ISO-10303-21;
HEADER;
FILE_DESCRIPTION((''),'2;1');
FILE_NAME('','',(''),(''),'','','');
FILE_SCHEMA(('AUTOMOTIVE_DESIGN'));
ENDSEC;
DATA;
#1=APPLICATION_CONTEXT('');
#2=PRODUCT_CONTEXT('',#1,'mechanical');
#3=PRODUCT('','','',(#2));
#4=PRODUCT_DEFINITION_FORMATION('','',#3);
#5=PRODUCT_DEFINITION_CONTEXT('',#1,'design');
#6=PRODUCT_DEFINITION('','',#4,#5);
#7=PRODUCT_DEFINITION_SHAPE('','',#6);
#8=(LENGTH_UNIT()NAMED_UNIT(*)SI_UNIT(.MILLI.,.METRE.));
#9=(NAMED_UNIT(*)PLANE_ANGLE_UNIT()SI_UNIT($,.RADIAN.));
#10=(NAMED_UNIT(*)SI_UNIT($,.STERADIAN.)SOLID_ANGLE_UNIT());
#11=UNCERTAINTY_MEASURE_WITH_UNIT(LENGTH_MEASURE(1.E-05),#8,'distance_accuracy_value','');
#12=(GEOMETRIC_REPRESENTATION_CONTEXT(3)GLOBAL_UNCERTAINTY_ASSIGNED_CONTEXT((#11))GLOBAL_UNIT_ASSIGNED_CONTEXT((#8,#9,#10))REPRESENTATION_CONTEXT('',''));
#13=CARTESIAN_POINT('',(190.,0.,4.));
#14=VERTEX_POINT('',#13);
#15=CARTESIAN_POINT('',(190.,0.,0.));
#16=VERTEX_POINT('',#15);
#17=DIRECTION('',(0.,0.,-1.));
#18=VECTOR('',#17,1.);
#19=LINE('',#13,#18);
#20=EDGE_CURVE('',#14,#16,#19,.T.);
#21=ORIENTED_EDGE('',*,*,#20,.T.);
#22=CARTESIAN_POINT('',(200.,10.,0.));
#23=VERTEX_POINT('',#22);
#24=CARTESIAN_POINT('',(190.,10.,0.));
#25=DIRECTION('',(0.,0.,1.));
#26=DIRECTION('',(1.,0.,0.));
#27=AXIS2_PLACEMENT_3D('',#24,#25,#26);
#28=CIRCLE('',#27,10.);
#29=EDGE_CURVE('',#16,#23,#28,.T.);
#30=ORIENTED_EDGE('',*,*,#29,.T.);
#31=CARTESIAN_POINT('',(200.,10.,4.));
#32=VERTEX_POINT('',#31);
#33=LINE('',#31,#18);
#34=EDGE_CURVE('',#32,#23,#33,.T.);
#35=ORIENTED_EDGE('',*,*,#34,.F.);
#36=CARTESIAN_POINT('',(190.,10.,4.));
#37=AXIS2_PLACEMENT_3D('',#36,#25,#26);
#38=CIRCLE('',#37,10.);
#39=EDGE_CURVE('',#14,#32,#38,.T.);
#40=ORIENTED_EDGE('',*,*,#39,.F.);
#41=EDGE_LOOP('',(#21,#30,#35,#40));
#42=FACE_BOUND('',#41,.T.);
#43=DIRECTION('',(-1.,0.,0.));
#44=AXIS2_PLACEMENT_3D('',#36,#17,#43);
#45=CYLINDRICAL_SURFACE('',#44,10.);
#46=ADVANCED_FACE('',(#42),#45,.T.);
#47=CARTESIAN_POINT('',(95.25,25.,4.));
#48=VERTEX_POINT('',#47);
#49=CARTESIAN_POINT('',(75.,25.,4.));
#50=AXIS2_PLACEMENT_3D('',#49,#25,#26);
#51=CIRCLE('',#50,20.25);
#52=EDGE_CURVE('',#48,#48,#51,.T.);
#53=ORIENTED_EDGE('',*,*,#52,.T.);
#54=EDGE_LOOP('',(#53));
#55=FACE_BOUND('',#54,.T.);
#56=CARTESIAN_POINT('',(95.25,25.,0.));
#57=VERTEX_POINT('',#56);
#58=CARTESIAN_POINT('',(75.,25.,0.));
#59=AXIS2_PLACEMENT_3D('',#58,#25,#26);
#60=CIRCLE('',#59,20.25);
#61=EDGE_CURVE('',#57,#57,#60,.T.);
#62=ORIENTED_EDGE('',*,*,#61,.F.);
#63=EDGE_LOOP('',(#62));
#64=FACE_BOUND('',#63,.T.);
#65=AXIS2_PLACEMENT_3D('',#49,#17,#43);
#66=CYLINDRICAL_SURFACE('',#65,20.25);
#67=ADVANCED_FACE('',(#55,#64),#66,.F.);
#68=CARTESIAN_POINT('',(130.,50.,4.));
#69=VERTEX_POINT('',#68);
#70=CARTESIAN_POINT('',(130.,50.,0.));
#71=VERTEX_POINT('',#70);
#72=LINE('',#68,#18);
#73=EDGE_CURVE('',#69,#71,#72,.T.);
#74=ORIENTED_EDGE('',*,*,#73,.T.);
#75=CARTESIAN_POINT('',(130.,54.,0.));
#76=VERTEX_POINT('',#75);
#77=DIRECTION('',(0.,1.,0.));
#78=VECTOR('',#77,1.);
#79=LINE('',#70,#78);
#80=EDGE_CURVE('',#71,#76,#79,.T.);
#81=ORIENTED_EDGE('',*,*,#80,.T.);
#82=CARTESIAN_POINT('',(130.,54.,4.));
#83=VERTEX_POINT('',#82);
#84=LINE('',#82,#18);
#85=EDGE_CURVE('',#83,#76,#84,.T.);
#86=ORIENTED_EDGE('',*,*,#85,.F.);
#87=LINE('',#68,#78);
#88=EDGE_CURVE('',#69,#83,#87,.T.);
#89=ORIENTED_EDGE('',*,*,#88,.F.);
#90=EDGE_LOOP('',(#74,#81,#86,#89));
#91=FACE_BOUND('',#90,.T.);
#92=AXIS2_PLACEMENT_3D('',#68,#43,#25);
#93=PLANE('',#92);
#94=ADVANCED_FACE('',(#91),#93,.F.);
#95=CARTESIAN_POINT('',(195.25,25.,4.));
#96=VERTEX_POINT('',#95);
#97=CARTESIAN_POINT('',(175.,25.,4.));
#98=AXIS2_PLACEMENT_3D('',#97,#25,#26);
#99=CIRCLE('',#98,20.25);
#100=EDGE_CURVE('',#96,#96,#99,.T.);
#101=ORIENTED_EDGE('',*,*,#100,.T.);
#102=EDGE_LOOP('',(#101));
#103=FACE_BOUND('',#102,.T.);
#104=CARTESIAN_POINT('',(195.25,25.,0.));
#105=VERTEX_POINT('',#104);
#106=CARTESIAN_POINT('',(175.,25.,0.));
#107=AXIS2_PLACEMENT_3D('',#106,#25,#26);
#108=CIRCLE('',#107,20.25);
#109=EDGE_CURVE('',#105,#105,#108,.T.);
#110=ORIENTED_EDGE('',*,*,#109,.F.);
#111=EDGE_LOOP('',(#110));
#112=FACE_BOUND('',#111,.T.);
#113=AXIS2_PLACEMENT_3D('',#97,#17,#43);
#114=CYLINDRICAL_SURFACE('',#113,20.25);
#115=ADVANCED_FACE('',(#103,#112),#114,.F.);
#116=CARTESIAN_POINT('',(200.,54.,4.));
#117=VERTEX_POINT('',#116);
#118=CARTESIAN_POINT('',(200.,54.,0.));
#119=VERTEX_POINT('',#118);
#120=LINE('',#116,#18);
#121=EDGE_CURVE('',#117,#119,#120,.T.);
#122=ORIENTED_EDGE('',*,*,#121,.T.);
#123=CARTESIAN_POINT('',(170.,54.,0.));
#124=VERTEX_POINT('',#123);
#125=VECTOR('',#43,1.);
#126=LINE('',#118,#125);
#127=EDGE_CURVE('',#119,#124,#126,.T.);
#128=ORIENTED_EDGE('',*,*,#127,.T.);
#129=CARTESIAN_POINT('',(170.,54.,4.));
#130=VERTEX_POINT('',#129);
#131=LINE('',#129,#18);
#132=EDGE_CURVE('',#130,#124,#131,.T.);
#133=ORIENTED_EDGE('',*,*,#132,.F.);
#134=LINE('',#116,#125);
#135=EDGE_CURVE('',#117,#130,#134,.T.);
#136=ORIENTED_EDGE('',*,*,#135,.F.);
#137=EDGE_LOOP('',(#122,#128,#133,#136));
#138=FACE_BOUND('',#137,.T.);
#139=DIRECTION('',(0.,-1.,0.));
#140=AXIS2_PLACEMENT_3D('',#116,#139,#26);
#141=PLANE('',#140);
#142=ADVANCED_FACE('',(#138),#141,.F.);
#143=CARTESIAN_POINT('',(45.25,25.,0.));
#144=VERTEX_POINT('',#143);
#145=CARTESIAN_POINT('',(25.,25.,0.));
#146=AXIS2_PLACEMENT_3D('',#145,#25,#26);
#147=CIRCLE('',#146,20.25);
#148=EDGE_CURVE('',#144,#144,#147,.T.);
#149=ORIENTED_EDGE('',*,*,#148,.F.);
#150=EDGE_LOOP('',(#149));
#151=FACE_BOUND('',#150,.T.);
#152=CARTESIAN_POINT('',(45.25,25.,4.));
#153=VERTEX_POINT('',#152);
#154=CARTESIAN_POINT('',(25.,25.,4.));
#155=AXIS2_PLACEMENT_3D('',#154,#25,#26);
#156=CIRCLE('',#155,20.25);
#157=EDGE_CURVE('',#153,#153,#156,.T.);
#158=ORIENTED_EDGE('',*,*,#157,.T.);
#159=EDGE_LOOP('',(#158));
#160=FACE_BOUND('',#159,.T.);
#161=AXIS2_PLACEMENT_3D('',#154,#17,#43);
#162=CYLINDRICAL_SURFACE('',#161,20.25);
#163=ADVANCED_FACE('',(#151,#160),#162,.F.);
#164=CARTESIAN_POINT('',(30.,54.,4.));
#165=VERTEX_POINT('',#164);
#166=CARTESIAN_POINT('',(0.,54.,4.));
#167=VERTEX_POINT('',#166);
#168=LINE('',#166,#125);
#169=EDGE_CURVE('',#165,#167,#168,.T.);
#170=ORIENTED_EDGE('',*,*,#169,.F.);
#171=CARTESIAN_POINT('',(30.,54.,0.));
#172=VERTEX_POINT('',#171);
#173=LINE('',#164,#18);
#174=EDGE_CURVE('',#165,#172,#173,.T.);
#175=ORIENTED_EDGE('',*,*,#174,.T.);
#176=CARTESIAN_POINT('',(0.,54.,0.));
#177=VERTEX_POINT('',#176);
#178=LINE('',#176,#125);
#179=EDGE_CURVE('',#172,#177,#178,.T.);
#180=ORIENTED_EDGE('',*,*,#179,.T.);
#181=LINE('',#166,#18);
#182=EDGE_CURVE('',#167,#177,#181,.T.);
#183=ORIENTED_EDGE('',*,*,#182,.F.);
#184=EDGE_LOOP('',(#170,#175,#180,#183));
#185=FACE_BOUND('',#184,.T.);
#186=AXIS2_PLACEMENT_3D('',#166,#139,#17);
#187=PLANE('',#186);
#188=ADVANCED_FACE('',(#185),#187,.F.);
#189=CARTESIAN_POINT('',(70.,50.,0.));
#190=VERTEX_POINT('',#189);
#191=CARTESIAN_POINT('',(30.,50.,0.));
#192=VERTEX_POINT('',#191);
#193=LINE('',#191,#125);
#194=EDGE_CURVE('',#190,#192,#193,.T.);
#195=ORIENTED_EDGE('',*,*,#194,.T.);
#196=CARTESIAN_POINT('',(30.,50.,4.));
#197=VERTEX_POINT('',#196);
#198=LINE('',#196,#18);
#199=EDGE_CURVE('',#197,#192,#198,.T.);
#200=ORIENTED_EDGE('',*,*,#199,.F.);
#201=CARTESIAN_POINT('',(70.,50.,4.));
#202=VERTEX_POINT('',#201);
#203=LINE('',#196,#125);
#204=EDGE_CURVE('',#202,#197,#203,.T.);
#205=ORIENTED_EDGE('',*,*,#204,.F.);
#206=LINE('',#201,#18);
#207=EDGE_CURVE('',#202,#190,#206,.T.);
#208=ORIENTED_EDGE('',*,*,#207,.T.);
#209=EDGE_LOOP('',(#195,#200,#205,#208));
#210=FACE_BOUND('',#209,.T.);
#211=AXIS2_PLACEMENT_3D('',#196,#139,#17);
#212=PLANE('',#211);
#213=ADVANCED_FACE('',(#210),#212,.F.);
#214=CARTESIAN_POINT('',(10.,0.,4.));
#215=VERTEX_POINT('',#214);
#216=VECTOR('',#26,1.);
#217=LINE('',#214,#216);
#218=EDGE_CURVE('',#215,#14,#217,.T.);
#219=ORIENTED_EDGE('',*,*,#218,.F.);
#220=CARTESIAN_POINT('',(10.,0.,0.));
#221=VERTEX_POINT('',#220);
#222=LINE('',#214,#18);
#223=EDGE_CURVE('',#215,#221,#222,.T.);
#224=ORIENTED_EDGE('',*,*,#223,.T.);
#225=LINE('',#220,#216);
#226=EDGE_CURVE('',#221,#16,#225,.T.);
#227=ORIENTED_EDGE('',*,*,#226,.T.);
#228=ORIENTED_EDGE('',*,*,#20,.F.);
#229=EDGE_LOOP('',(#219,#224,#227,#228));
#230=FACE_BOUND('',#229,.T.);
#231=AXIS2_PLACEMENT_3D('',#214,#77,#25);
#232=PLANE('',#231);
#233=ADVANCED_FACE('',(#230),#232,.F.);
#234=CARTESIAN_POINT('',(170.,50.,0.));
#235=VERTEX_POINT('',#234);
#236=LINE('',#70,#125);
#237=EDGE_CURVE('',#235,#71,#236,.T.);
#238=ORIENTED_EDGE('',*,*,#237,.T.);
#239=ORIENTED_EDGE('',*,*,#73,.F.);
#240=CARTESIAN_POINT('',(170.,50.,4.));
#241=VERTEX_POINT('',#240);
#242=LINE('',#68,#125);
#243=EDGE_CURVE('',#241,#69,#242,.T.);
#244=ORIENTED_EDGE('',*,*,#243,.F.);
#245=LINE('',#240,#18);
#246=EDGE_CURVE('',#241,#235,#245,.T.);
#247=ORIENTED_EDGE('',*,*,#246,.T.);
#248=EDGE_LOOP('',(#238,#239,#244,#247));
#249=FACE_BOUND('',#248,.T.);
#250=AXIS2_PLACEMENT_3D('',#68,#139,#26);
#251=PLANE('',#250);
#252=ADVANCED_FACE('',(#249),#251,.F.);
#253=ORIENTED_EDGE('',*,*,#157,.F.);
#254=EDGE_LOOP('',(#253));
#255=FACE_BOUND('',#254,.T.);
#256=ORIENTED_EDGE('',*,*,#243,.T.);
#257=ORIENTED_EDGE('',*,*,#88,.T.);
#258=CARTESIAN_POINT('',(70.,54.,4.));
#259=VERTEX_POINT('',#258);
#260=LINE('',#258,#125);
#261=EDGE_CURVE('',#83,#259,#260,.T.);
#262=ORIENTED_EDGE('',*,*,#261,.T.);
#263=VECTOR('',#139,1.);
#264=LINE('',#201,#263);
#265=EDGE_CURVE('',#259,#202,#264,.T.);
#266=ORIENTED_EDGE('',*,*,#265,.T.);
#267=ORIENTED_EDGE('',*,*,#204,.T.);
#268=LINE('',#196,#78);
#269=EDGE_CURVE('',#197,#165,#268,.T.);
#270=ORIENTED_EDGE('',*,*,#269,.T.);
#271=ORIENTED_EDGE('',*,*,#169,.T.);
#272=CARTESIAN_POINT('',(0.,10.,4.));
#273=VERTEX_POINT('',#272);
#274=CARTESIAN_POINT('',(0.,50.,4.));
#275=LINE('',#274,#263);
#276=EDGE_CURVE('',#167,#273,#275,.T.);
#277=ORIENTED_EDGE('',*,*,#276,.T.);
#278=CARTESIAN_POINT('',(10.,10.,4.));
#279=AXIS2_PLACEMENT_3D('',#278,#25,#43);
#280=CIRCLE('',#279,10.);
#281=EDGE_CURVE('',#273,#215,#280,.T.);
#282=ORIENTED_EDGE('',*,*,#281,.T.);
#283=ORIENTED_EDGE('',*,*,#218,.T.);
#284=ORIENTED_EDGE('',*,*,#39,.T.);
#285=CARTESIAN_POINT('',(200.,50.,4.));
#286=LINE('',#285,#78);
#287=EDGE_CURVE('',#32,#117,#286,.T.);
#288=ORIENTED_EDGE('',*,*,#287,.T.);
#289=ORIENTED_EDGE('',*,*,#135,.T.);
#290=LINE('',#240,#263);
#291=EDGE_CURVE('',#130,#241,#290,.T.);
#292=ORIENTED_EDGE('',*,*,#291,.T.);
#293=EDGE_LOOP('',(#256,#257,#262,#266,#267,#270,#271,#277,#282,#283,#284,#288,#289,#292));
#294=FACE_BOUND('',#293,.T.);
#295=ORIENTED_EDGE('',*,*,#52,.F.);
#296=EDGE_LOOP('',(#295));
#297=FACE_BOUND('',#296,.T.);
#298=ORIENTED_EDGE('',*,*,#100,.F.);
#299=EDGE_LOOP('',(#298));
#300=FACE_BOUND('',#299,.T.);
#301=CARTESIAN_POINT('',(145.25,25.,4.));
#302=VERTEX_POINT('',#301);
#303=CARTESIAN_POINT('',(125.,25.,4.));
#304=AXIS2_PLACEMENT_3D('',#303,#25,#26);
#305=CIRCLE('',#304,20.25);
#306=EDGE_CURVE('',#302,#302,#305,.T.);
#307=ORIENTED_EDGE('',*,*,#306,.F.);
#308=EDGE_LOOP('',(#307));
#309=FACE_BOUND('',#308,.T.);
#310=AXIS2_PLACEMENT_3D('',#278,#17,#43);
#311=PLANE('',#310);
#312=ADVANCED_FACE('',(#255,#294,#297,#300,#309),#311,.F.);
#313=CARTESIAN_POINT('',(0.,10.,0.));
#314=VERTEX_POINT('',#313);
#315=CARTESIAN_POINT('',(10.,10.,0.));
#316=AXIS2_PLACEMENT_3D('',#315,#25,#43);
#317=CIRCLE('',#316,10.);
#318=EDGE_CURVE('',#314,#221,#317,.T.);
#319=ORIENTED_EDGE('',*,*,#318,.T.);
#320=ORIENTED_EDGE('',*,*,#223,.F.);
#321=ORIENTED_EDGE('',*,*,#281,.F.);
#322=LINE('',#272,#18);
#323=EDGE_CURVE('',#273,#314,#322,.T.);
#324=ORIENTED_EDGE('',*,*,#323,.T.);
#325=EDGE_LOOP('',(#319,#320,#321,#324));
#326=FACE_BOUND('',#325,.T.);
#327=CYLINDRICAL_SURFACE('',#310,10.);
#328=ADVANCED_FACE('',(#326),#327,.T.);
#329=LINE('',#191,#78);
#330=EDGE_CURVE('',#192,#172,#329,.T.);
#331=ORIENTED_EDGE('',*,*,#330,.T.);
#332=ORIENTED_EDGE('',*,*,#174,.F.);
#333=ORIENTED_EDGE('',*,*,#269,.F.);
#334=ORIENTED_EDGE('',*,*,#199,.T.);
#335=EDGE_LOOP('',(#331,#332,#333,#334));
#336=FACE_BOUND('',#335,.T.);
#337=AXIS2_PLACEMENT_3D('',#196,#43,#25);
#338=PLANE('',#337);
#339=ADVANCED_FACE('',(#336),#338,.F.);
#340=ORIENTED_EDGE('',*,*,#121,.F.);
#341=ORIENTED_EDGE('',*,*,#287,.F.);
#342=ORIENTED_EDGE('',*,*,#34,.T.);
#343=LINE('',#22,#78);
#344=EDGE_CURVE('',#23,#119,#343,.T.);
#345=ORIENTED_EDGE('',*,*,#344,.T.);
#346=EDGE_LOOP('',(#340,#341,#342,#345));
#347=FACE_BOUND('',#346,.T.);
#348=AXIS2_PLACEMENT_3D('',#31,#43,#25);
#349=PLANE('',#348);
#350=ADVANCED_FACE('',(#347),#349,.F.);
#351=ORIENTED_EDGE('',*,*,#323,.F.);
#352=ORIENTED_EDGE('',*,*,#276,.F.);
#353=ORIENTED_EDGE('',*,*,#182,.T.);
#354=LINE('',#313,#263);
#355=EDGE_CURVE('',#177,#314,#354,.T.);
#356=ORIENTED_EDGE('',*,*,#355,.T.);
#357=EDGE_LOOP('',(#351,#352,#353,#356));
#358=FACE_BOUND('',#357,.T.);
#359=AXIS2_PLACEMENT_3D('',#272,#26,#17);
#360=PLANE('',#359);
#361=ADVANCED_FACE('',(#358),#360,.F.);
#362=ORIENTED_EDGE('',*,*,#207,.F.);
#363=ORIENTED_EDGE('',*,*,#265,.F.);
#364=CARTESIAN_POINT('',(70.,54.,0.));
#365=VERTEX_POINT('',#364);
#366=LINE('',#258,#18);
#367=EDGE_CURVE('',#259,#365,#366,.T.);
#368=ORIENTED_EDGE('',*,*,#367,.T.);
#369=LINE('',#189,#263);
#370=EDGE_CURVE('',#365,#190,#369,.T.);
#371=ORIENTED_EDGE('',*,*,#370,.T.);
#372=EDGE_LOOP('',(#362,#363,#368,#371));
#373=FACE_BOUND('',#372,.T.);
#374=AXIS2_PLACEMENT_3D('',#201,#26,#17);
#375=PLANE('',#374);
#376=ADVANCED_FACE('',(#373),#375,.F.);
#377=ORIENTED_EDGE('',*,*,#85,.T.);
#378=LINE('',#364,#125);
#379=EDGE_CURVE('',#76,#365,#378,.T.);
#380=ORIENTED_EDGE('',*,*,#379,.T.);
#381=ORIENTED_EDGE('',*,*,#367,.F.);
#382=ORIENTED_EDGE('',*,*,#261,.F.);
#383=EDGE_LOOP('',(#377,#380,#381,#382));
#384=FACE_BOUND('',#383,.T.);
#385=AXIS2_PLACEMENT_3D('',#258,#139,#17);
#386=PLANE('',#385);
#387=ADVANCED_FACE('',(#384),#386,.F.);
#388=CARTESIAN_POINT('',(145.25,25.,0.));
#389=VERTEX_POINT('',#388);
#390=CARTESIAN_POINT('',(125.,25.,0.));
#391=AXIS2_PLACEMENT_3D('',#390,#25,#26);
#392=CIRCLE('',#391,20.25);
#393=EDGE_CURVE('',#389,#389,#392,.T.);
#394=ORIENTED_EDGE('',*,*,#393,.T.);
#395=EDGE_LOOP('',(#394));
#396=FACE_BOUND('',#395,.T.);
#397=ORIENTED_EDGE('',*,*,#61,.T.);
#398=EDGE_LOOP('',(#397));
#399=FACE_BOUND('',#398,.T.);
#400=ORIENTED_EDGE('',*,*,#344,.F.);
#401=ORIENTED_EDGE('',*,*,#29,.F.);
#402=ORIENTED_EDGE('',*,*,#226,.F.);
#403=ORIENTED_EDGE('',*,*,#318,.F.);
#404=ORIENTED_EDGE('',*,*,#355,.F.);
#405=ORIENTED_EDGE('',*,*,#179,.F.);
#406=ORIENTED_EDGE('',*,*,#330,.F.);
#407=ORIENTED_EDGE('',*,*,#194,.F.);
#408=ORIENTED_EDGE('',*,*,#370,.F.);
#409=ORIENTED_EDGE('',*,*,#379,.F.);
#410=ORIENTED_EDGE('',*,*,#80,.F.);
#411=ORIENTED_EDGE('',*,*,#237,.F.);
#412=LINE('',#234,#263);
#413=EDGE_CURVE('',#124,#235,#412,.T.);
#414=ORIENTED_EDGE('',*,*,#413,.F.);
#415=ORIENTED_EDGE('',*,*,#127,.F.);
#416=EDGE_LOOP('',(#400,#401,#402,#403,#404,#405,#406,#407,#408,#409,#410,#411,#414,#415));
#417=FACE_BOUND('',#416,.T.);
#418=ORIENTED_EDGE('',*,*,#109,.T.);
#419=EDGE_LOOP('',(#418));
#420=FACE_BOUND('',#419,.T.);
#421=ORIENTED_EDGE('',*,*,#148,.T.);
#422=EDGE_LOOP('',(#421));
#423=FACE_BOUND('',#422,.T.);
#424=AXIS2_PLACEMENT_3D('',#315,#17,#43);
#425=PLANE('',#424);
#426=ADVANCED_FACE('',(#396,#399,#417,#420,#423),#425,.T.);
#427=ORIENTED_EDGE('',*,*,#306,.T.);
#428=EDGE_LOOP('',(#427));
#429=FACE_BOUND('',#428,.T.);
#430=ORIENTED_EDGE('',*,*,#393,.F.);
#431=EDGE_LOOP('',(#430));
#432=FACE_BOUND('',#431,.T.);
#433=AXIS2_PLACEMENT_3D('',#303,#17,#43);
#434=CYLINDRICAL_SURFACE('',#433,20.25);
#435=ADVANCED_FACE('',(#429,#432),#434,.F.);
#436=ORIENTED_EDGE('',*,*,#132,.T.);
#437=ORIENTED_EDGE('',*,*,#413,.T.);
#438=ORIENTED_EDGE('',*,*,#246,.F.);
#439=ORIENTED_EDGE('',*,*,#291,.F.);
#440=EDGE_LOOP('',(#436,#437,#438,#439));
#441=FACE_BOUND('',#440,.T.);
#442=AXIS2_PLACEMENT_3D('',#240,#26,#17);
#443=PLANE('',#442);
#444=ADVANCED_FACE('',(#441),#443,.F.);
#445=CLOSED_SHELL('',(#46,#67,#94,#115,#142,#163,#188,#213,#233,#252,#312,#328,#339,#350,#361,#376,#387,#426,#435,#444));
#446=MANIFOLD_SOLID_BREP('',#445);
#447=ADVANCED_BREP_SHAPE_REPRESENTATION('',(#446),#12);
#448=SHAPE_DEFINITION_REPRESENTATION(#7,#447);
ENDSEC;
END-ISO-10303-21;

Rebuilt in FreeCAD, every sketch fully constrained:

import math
import FreeCAD as App
import Part
import Sketcher

doc = App.newDocument("Part")
body = doc.addObject("PartDesign::Body", "Body")

# Sketch on XY plane
sketch1 = doc.addObject("Sketcher::SketchObject", "Sketch")
body.addObject(sketch1)
sketch1.AttachmentSupport = (doc.XY_Plane, [""])
sketch1.MapMode = "FlatFace"
sketch1.addGeometry([
    Part.LineSegment(App.Vector(10, 0, 0), App.Vector(190, 0, 0)),  # 0
    Part.ArcOfCircle(Part.Circle(App.Vector(190, 10, 0), App.Vector(0, 0, 1), 10), math.radians(-90), math.radians(0)),  # 1
    Part.LineSegment(App.Vector(200, 10, 0), App.Vector(200, 54, 0)),  # 2
    Part.LineSegment(App.Vector(200, 54, 0), App.Vector(170, 54, 0)),  # 3
    Part.LineSegment(App.Vector(170, 54, 0), App.Vector(170, 50, 0)),  # 4
    Part.LineSegment(App.Vector(170, 50, 0), App.Vector(130, 50, 0)),  # 5
    Part.LineSegment(App.Vector(130, 50, 0), App.Vector(130, 54, 0)),  # 6
    Part.LineSegment(App.Vector(130, 54, 0), App.Vector(70, 54, 0)),  # 7
    Part.LineSegment(App.Vector(70, 54, 0), App.Vector(70, 50, 0)),  # 8
    Part.LineSegment(App.Vector(70, 50, 0), App.Vector(30, 50, 0)),  # 9
    Part.LineSegment(App.Vector(30, 50, 0), App.Vector(30, 54, 0)),  # 10
    Part.LineSegment(App.Vector(30, 54, 0), App.Vector(0, 54, 0)),  # 11
    Part.LineSegment(App.Vector(0, 54, 0), App.Vector(0, 10, 0)),  # 12
    Part.ArcOfCircle(Part.Circle(App.Vector(10, 10, 0), App.Vector(0, 0, 1), 10), math.radians(180), math.radians(270)),  # 13
    Part.Circle(App.Vector(25, 25, 0), App.Vector(0, 0, 1), 20.2),  # 14
    Part.Circle(App.Vector(75, 25, 0), App.Vector(0, 0, 1), 20.2),  # 15
    Part.Circle(App.Vector(125, 25, 0), App.Vector(0, 0, 1), 20.2),  # 16
    Part.Circle(App.Vector(175, 25, 0), App.Vector(0, 0, 1), 20.2),  # 17
], False)
sketch1.addConstraint([
    Sketcher.Constraint("Tangent", 0, 2, 1, 1),
    Sketcher.Constraint("Tangent", 1, 2, 2, 1),
    Sketcher.Constraint("Coincident", 2, 2, 3, 1),
    Sketcher.Constraint("Coincident", 3, 2, 4, 1),
    Sketcher.Constraint("Coincident", 4, 2, 5, 1),
    Sketcher.Constraint("Coincident", 5, 2, 6, 1),
    Sketcher.Constraint("Coincident", 6, 2, 7, 1),
    Sketcher.Constraint("Coincident", 7, 2, 8, 1),
    Sketcher.Constraint("Coincident", 8, 2, 9, 1),
    Sketcher.Constraint("Coincident", 9, 2, 10, 1),
    Sketcher.Constraint("Coincident", 10, 2, 11, 1),
    Sketcher.Constraint("Coincident", 11, 2, 12, 1),
    Sketcher.Constraint("Tangent", 12, 2, 13, 1),
    Sketcher.Constraint("Tangent", 13, 2, 0, 1),
    Sketcher.Constraint("Horizontal", 0),
    Sketcher.Constraint("Vertical", 2),
    Sketcher.Constraint("Horizontal", 3),
    Sketcher.Constraint("Vertical", 4),
    Sketcher.Constraint("Horizontal", 5),
    Sketcher.Constraint("Vertical", 6),
    Sketcher.Constraint("Horizontal", 7),
    Sketcher.Constraint("Vertical", 8),
    Sketcher.Constraint("Horizontal", 9),
    Sketcher.Constraint("Vertical", 10),
    Sketcher.Constraint("Horizontal", 11),
    Sketcher.Constraint("Vertical", 12),
    Sketcher.Constraint("Equal", 1, 13),
    Sketcher.Constraint("Equal", 14, 15),
    Sketcher.Constraint("Equal", 15, 16),
    Sketcher.Constraint("Equal", 16, 17),
    Sketcher.Constraint("PointOnObject", 0, 2, -1),
    Sketcher.Constraint("PointOnObject", 11, 2, -2),
    Sketcher.Constraint("Horizontal", 14, 3, 15, 3),
    Sketcher.Constraint("Horizontal", 15, 3, 16, 3),
    Sketcher.Constraint("Horizontal", 16, 3, 17, 3),
    Sketcher.Constraint("Horizontal", 3, 2, 6, 2),
    Sketcher.Constraint("Horizontal", 5, 2, 8, 2),
    Sketcher.Constraint("Horizontal", 7, 2, 10, 2),
    Sketcher.Constraint("Equal", 5, 9),
    Sketcher.Constraint("Equal", 3, 11),
    Sketcher.Constraint("Radius", 1, 10.0),
    Sketcher.Constraint("Diameter", 14, 40.5),
    Sketcher.Constraint("DistanceX", 0, 1, 0, 2, 180.0),
    Sketcher.Constraint("DistanceX", 3, 2, 3, 1, 30.0),
    Sketcher.Constraint("DistanceX", 5, 2, 5, 1, 40.0),
    Sketcher.Constraint("DistanceY", 2, 1, 2, 2, 44.0),
    Sketcher.Constraint("DistanceY", 4, 2, 4, 1, 4.0),
    Sketcher.Constraint("DistanceX", -1, 1, 14, 3, 25.0),
    Sketcher.Constraint("DistanceY", -1, 1, 14, 3, 25.0),
    Sketcher.Constraint("DistanceX", -1, 1, 15, 3, 75.0),
    Sketcher.Constraint("DistanceX", -1, 1, 16, 3, 125.0),
    Sketcher.Constraint("DistanceX", -1, 1, 17, 3, 175.0),
])
pad1 = doc.addObject("PartDesign::Pad", "Pad")
body.addObject(pad1)
pad1.Profile = sketch1
pad1.Length = 4

doc.recompute()
